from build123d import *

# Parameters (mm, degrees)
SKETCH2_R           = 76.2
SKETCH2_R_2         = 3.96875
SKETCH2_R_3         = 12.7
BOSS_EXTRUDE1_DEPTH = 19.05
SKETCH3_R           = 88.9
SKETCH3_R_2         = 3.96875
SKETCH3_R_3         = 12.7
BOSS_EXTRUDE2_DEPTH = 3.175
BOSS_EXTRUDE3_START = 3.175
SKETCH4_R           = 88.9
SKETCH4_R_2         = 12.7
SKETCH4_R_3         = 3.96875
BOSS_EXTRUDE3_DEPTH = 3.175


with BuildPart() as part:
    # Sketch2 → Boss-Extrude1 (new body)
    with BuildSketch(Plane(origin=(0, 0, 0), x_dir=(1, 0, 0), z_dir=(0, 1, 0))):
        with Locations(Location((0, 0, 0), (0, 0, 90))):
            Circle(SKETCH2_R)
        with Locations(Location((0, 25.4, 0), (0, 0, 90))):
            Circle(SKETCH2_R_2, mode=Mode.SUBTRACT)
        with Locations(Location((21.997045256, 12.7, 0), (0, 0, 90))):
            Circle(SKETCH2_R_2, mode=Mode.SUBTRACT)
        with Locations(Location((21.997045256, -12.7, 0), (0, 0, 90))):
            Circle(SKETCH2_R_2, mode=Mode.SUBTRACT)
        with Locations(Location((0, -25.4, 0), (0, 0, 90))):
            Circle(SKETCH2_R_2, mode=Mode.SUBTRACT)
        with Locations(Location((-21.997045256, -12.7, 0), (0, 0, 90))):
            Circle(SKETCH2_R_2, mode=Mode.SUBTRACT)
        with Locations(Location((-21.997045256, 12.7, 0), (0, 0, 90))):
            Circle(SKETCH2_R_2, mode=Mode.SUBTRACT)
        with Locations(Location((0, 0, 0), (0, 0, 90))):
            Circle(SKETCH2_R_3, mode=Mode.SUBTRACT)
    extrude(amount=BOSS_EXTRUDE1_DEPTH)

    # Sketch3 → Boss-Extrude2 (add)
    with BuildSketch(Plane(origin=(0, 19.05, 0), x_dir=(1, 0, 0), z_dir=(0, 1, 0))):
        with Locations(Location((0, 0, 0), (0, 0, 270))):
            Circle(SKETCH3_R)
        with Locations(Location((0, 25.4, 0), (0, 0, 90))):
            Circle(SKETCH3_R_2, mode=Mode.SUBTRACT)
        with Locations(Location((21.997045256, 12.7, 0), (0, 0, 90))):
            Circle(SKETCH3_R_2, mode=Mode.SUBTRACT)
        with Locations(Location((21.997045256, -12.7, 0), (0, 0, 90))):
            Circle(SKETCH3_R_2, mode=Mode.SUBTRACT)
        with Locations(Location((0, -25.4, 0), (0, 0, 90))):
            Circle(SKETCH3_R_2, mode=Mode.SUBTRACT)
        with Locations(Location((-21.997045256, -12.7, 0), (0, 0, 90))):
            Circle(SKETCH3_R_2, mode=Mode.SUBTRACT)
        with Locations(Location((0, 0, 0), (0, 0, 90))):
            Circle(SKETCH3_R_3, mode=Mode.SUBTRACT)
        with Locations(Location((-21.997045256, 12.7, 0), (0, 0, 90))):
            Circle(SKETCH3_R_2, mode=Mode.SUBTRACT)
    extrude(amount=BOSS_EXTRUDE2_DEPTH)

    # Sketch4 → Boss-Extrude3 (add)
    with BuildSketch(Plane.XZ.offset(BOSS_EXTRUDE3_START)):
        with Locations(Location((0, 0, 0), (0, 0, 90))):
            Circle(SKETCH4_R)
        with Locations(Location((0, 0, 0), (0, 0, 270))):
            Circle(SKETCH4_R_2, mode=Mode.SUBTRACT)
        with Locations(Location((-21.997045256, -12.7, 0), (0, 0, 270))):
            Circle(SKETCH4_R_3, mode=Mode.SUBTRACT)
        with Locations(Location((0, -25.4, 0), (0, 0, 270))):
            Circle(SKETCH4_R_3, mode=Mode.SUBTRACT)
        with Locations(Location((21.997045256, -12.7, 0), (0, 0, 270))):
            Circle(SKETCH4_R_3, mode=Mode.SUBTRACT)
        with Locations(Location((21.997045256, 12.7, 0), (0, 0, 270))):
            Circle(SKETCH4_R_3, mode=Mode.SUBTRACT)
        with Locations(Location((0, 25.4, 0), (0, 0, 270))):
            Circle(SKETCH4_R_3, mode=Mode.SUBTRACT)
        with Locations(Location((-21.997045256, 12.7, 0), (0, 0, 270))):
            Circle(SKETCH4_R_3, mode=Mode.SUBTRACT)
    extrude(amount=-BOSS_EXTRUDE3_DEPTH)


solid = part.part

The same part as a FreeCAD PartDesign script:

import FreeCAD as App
import Part
import Sketcher

V = App.Vector
Q = App.Units.Quantity

doc = App.newDocument("Part")
params = doc.addObject("Spreadsheet::Sheet", "Params")
for row, (alias, value) in enumerate([
    ("sketch1_diameter", "6 in"),
    ("sketch1_diameter2", "1 in"),
    ("sketch1_diameter3", "0.3125 in"),
    ("pad1_length", "0.75 in"),
    ("sketch2_diameter", "7 in"),
    ("sketch2_diameter2", "1 in"),
    ("sketch2_diameter3", "0.3125 in"),
    ("pad2_length", "0.125 in"),
    ("sketch3_diameter", "7 in"),
    ("sketch3_diameter2", "1 in"),
    ("sketch3_diameter3", "0.3125 in"),
    ("pad3_length", "0.125 in"),
], start=1):
    params.set(f"A{row}", alias)
    params.set(f"B{row}", "=" + value)
    params.setAlias(f"B{row}", alias)

body = doc.addObject("PartDesign::Body", "Body")

# Sketch on XZ plane
sketch1 = body.newObject("Sketcher::SketchObject", "Sketch")
sketch1.AttachmentSupport = (doc.getObject("XZ_Plane"), [""])
sketch1.MapMode = "FlatFace"
sketch1.addGeometry(Part.Circle(V(0, 0, 0), V(0, 0, 1), 76.2), False)
sketch1.addGeometry(Part.Circle(V(22, 12.7, 0), V(0, 0, 1), 4), False)
sketch1.addGeometry(Part.Circle(V(0, 25.4, 0), V(0, 0, 1), 4), False)
sketch1.addGeometry(Part.Circle(V(22, -12.7, 0), V(0, 0, 1), 4), False)
sketch1.addGeometry(Part.Circle(V(-22, 12.7, 0), V(0, 0, 1), 4), False)
sketch1.addGeometry(Part.Circle(V(0, 0, 0), V(0, 0, 1), 12.7), False)
sketch1.addGeometry(Part.Circle(V(0, -25.4, 0), V(0, 0, 1), 4), False)
sketch1.addGeometry(Part.Circle(V(-22, -12.7, 0), V(0, 0, 1), 4), False)
sketch1.addConstraint(Sketcher.Constraint("Coincident", 0, 3, -1, 1))
sketch1.addConstraint(Sketcher.Constraint("Coincident", 5, 3, -1, 1))
sketch1.addConstraint(Sketcher.Constraint("Equal", 1, 2))
sketch1.addConstraint(Sketcher.Constraint("Equal", 2, 3))
sketch1.addConstraint(Sketcher.Constraint("Equal", 3, 4))
sketch1.addConstraint(Sketcher.Constraint("Equal", 4, 6))
sketch1.addConstraint(Sketcher.Constraint("Equal", 6, 7))
sketch1.addConstraint(Sketcher.Constraint("Symmetric", 3, 3, 4, 3, -1, 1))
sketch1.addConstraint(Sketcher.Constraint("Symmetric", 2, 3, 6, 3, -1, 1))
sketch1.addConstraint(Sketcher.Constraint("Symmetric", 1, 3, 7, 3, -1, 1))
sketch1.addConstraint(Sketcher.Constraint("Symmetric", 1, 3, 4, 3, -2))
sketch1.addConstraint(Sketcher.Constraint("PointOnObject", 2, 3, -2))
sketch1.addConstraint(Sketcher.Constraint("Diameter", 0, Q("6 in")))
sketch1.addConstraint(Sketcher.Constraint("Diameter", 5, Q("1 in")))
sketch1.addConstraint(Sketcher.Constraint("Diameter", 1, Q("0.3125 in")))
sketch1.addConstraint(Sketcher.Constraint("DistanceY", -1, 1, 2, 3, Q("1 in")))
sketch1.addConstraint(Sketcher.Constraint("DistanceY", 3, 3, 1, 3, Q("1 in")))
sketch1.addConstraint(Sketcher.Constraint("DistanceX", 4, 3, 1, 3, Q("43.994091 mm")))
sketch1.setExpression("Constraints[12]", "Params.sketch1_diameter")
sketch1.setExpression("Constraints[13]", "Params.sketch1_diameter2")
sketch1.setExpression("Constraints[14]", "Params.sketch1_diameter3")
pad1 = body.newObject("PartDesign::Pad", "Pad")
pad1.Profile = sketch1
pad1.setExpression("Length", "Params.pad1_length")
pad1.Reversed = True

# Sketch on XZ plane
sketch2 = body.newObject("Sketcher::SketchObject", "Sketch001")
sketch2.AttachmentSupport = (doc.getObject("XZ_Plane"), [""])
sketch2.MapMode = "FlatFace"
sketch2.AttachmentOffset = App.Placement(V(0, 0, -0.75 * 25.4), App.Rotation())
sketch2.addGeometry(Part.Circle(V(0, 0, 0), V(0, 0, 1), 88.9), False)
sketch2.addGeometry(Part.Circle(V(-22, -12.7, 0), V(0, 0, 1), 4), False)
sketch2.addGeometry(Part.Circle(V(0, -25.4, 0), V(0, 0, 1), 4), False)
sketch2.addGeometry(Part.Circle(V(-22, 12.7, 0), V(0, 0, 1), 4), False)
sketch2.addGeometry(Part.Circle(V(22, -12.7, 0), V(0, 0, 1), 4), False)
sketch2.addGeometry(Part.Circle(V(0, 0, 0), V(0, 0, 1), 12.7), False)
sketch2.addGeometry(Part.Circle(V(0, 25.4, 0), V(0, 0, 1), 4), False)
sketch2.addGeometry(Part.Circle(V(22, 12.7, 0), V(0, 0, 1), 4), False)
sketch2.addConstraint(Sketcher.Constraint("Coincident", 0, 3, -1, 1))
sketch2.addConstraint(Sketcher.Constraint("Coincident", 5, 3, -1, 1))
sketch2.addConstraint(Sketcher.Constraint("Equal", 1, 2))
sketch2.addConstraint(Sketcher.Constraint("Equal", 2, 3))
sketch2.addConstraint(Sketcher.Constraint("Equal", 3, 4))
sketch2.addConstraint(Sketcher.Constraint("Equal", 4, 6))
sketch2.addConstraint(Sketcher.Constraint("Equal", 6, 7))
sketch2.addConstraint(Sketcher.Constraint("Symmetric", 3, 3, 4, 3, -1, 1))
sketch2.addConstraint(Sketcher.Constraint("Symmetric", 2, 3, 6, 3, -1, 1))
sketch2.addConstraint(Sketcher.Constraint("Symmetric", 1, 3, 7, 3, -1, 1))
sketch2.addConstraint(Sketcher.Constraint("Symmetric", 1, 3, 4, 3, -2))
sketch2.addConstraint(Sketcher.Constraint("PointOnObject", 2, 3, -2))
sketch2.addConstraint(Sketcher.Constraint("Diameter", 0, Q("7 in")))
sketch2.addConstraint(Sketcher.Constraint("Diameter", 5, Q("1 in")))
sketch2.addConstraint(Sketcher.Constraint("Diameter", 1, Q("0.3125 in")))
sketch2.addConstraint(Sketcher.Constraint("DistanceY", 2, 3, -1, 1, Q("1 in")))
sketch2.addConstraint(Sketcher.Constraint("DistanceY", 1, 3, 3, 3, Q("1 in")))
sketch2.addConstraint(Sketcher.Constraint("DistanceX", 1, 3, 4, 3, Q("43.994091 mm")))
sketch2.setExpression("Constraints[12]", "Params.sketch2_diameter")
sketch2.setExpression("Constraints[13]", "Params.sketch2_diameter2")
sketch2.setExpression("Constraints[14]", "Params.sketch2_diameter3")
pad2 = body.newObject("PartDesign::Pad", "Pad001")
pad2.Profile = sketch2
pad2.setExpression("Length", "Params.pad2_length")
pad2.Reversed = True

# Sketch on XZ plane
sketch3 = body.newObject("Sketcher::SketchObject", "Sketch002")
sketch3.AttachmentSupport = (doc.getObject("XZ_Plane"), [""])
sketch3.MapMode = "FlatFace"
sketch3.AttachmentOffset = App.Placement(V(0, 0, 0.125 * 25.4), App.Rotation())
sketch3.addGeometry(Part.Circle(V(0, 0, 0), V(0, 0, 1), 88.9), False)
sketch3.addGeometry(Part.Circle(V(22, -12.7, 0), V(0, 0, 1), 4), False)
sketch3.addGeometry(Part.Circle(V(0, -25.4, 0), V(0, 0, 1), 4), False)
sketch3.addGeometry(Part.Circle(V(22, 12.7, 0), V(0, 0, 1), 4), False)
sketch3.addGeometry(Part.Circle(V(-22, -12.7, 0), V(0, 0, 1), 4), False)
sketch3.addGeometry(Part.Circle(V(0, 0, 0), V(0, 0, 1), 12.7), False)
sketch3.addGeometry(Part.Circle(V(0, 25.4, 0), V(0, 0, 1), 4), False)
sketch3.addGeometry(Part.Circle(V(-22, 12.7, 0), V(0, 0, 1), 4), False)
sketch3.addConstraint(Sketcher.Constraint("Coincident", 0, 3, -1, 1))
sketch3.addConstraint(Sketcher.Constraint("Coincident", 5, 3, -1, 1))
sketch3.addConstraint(Sketcher.Constraint("Equal", 1, 2))
sketch3.addConstraint(Sketcher.Constraint("Equal", 2, 3))
sketch3.addConstraint(Sketcher.Constraint("Equal", 3, 4))
sketch3.addConstraint(Sketcher.Constraint("Equal", 4, 6))
sketch3.addConstraint(Sketcher.Constraint("Equal", 6, 7))
sketch3.addConstraint(Sketcher.Constraint("Symmetric", 3, 3, 4, 3, -1, 1))
sketch3.addConstraint(Sketcher.Constraint("Symmetric", 2, 3, 6, 3, -1, 1))
sketch3.addConstraint(Sketcher.Constraint("Symmetric", 1, 3, 7, 3, -1, 1))
sketch3.addConstraint(Sketcher.Constraint("Symmetric", 1, 3, 4, 3, -2))
sketch3.addConstraint(Sketcher.Constraint("PointOnObject", 2, 3, -2))
sketch3.addConstraint(Sketcher.Constraint("Diameter", 0, Q("7 in")))
sketch3.addConstraint(Sketcher.Constraint("Diameter", 5, Q("1 in")))
sketch3.addConstraint(Sketcher.Constraint("Diameter", 1, Q("0.3125 in")))
sketch3.addConstraint(Sketcher.Constraint("DistanceY", 2, 3, -1, 1, Q("1 in")))
sketch3.addConstraint(Sketcher.Constraint("DistanceY", 1, 3, 3, 3, Q("1 in")))
sketch3.addConstraint(Sketcher.Constraint("DistanceX", 4, 3, 1, 3, Q("43.994091 mm")))
sketch3.setExpression("Constraints[12]", "Params.sketch3_diameter")
sketch3.setExpression("Constraints[13]", "Params.sketch3_diameter2")
sketch3.setExpression("Constraints[14]", "Params.sketch3_diameter3")
pad3 = body.newObject("PartDesign::Pad", "Pad002")
pad3.Profile = sketch3
pad3.setExpression("Length", "Params.pad3_length")
pad3.Reversed = True

doc.recompute()
